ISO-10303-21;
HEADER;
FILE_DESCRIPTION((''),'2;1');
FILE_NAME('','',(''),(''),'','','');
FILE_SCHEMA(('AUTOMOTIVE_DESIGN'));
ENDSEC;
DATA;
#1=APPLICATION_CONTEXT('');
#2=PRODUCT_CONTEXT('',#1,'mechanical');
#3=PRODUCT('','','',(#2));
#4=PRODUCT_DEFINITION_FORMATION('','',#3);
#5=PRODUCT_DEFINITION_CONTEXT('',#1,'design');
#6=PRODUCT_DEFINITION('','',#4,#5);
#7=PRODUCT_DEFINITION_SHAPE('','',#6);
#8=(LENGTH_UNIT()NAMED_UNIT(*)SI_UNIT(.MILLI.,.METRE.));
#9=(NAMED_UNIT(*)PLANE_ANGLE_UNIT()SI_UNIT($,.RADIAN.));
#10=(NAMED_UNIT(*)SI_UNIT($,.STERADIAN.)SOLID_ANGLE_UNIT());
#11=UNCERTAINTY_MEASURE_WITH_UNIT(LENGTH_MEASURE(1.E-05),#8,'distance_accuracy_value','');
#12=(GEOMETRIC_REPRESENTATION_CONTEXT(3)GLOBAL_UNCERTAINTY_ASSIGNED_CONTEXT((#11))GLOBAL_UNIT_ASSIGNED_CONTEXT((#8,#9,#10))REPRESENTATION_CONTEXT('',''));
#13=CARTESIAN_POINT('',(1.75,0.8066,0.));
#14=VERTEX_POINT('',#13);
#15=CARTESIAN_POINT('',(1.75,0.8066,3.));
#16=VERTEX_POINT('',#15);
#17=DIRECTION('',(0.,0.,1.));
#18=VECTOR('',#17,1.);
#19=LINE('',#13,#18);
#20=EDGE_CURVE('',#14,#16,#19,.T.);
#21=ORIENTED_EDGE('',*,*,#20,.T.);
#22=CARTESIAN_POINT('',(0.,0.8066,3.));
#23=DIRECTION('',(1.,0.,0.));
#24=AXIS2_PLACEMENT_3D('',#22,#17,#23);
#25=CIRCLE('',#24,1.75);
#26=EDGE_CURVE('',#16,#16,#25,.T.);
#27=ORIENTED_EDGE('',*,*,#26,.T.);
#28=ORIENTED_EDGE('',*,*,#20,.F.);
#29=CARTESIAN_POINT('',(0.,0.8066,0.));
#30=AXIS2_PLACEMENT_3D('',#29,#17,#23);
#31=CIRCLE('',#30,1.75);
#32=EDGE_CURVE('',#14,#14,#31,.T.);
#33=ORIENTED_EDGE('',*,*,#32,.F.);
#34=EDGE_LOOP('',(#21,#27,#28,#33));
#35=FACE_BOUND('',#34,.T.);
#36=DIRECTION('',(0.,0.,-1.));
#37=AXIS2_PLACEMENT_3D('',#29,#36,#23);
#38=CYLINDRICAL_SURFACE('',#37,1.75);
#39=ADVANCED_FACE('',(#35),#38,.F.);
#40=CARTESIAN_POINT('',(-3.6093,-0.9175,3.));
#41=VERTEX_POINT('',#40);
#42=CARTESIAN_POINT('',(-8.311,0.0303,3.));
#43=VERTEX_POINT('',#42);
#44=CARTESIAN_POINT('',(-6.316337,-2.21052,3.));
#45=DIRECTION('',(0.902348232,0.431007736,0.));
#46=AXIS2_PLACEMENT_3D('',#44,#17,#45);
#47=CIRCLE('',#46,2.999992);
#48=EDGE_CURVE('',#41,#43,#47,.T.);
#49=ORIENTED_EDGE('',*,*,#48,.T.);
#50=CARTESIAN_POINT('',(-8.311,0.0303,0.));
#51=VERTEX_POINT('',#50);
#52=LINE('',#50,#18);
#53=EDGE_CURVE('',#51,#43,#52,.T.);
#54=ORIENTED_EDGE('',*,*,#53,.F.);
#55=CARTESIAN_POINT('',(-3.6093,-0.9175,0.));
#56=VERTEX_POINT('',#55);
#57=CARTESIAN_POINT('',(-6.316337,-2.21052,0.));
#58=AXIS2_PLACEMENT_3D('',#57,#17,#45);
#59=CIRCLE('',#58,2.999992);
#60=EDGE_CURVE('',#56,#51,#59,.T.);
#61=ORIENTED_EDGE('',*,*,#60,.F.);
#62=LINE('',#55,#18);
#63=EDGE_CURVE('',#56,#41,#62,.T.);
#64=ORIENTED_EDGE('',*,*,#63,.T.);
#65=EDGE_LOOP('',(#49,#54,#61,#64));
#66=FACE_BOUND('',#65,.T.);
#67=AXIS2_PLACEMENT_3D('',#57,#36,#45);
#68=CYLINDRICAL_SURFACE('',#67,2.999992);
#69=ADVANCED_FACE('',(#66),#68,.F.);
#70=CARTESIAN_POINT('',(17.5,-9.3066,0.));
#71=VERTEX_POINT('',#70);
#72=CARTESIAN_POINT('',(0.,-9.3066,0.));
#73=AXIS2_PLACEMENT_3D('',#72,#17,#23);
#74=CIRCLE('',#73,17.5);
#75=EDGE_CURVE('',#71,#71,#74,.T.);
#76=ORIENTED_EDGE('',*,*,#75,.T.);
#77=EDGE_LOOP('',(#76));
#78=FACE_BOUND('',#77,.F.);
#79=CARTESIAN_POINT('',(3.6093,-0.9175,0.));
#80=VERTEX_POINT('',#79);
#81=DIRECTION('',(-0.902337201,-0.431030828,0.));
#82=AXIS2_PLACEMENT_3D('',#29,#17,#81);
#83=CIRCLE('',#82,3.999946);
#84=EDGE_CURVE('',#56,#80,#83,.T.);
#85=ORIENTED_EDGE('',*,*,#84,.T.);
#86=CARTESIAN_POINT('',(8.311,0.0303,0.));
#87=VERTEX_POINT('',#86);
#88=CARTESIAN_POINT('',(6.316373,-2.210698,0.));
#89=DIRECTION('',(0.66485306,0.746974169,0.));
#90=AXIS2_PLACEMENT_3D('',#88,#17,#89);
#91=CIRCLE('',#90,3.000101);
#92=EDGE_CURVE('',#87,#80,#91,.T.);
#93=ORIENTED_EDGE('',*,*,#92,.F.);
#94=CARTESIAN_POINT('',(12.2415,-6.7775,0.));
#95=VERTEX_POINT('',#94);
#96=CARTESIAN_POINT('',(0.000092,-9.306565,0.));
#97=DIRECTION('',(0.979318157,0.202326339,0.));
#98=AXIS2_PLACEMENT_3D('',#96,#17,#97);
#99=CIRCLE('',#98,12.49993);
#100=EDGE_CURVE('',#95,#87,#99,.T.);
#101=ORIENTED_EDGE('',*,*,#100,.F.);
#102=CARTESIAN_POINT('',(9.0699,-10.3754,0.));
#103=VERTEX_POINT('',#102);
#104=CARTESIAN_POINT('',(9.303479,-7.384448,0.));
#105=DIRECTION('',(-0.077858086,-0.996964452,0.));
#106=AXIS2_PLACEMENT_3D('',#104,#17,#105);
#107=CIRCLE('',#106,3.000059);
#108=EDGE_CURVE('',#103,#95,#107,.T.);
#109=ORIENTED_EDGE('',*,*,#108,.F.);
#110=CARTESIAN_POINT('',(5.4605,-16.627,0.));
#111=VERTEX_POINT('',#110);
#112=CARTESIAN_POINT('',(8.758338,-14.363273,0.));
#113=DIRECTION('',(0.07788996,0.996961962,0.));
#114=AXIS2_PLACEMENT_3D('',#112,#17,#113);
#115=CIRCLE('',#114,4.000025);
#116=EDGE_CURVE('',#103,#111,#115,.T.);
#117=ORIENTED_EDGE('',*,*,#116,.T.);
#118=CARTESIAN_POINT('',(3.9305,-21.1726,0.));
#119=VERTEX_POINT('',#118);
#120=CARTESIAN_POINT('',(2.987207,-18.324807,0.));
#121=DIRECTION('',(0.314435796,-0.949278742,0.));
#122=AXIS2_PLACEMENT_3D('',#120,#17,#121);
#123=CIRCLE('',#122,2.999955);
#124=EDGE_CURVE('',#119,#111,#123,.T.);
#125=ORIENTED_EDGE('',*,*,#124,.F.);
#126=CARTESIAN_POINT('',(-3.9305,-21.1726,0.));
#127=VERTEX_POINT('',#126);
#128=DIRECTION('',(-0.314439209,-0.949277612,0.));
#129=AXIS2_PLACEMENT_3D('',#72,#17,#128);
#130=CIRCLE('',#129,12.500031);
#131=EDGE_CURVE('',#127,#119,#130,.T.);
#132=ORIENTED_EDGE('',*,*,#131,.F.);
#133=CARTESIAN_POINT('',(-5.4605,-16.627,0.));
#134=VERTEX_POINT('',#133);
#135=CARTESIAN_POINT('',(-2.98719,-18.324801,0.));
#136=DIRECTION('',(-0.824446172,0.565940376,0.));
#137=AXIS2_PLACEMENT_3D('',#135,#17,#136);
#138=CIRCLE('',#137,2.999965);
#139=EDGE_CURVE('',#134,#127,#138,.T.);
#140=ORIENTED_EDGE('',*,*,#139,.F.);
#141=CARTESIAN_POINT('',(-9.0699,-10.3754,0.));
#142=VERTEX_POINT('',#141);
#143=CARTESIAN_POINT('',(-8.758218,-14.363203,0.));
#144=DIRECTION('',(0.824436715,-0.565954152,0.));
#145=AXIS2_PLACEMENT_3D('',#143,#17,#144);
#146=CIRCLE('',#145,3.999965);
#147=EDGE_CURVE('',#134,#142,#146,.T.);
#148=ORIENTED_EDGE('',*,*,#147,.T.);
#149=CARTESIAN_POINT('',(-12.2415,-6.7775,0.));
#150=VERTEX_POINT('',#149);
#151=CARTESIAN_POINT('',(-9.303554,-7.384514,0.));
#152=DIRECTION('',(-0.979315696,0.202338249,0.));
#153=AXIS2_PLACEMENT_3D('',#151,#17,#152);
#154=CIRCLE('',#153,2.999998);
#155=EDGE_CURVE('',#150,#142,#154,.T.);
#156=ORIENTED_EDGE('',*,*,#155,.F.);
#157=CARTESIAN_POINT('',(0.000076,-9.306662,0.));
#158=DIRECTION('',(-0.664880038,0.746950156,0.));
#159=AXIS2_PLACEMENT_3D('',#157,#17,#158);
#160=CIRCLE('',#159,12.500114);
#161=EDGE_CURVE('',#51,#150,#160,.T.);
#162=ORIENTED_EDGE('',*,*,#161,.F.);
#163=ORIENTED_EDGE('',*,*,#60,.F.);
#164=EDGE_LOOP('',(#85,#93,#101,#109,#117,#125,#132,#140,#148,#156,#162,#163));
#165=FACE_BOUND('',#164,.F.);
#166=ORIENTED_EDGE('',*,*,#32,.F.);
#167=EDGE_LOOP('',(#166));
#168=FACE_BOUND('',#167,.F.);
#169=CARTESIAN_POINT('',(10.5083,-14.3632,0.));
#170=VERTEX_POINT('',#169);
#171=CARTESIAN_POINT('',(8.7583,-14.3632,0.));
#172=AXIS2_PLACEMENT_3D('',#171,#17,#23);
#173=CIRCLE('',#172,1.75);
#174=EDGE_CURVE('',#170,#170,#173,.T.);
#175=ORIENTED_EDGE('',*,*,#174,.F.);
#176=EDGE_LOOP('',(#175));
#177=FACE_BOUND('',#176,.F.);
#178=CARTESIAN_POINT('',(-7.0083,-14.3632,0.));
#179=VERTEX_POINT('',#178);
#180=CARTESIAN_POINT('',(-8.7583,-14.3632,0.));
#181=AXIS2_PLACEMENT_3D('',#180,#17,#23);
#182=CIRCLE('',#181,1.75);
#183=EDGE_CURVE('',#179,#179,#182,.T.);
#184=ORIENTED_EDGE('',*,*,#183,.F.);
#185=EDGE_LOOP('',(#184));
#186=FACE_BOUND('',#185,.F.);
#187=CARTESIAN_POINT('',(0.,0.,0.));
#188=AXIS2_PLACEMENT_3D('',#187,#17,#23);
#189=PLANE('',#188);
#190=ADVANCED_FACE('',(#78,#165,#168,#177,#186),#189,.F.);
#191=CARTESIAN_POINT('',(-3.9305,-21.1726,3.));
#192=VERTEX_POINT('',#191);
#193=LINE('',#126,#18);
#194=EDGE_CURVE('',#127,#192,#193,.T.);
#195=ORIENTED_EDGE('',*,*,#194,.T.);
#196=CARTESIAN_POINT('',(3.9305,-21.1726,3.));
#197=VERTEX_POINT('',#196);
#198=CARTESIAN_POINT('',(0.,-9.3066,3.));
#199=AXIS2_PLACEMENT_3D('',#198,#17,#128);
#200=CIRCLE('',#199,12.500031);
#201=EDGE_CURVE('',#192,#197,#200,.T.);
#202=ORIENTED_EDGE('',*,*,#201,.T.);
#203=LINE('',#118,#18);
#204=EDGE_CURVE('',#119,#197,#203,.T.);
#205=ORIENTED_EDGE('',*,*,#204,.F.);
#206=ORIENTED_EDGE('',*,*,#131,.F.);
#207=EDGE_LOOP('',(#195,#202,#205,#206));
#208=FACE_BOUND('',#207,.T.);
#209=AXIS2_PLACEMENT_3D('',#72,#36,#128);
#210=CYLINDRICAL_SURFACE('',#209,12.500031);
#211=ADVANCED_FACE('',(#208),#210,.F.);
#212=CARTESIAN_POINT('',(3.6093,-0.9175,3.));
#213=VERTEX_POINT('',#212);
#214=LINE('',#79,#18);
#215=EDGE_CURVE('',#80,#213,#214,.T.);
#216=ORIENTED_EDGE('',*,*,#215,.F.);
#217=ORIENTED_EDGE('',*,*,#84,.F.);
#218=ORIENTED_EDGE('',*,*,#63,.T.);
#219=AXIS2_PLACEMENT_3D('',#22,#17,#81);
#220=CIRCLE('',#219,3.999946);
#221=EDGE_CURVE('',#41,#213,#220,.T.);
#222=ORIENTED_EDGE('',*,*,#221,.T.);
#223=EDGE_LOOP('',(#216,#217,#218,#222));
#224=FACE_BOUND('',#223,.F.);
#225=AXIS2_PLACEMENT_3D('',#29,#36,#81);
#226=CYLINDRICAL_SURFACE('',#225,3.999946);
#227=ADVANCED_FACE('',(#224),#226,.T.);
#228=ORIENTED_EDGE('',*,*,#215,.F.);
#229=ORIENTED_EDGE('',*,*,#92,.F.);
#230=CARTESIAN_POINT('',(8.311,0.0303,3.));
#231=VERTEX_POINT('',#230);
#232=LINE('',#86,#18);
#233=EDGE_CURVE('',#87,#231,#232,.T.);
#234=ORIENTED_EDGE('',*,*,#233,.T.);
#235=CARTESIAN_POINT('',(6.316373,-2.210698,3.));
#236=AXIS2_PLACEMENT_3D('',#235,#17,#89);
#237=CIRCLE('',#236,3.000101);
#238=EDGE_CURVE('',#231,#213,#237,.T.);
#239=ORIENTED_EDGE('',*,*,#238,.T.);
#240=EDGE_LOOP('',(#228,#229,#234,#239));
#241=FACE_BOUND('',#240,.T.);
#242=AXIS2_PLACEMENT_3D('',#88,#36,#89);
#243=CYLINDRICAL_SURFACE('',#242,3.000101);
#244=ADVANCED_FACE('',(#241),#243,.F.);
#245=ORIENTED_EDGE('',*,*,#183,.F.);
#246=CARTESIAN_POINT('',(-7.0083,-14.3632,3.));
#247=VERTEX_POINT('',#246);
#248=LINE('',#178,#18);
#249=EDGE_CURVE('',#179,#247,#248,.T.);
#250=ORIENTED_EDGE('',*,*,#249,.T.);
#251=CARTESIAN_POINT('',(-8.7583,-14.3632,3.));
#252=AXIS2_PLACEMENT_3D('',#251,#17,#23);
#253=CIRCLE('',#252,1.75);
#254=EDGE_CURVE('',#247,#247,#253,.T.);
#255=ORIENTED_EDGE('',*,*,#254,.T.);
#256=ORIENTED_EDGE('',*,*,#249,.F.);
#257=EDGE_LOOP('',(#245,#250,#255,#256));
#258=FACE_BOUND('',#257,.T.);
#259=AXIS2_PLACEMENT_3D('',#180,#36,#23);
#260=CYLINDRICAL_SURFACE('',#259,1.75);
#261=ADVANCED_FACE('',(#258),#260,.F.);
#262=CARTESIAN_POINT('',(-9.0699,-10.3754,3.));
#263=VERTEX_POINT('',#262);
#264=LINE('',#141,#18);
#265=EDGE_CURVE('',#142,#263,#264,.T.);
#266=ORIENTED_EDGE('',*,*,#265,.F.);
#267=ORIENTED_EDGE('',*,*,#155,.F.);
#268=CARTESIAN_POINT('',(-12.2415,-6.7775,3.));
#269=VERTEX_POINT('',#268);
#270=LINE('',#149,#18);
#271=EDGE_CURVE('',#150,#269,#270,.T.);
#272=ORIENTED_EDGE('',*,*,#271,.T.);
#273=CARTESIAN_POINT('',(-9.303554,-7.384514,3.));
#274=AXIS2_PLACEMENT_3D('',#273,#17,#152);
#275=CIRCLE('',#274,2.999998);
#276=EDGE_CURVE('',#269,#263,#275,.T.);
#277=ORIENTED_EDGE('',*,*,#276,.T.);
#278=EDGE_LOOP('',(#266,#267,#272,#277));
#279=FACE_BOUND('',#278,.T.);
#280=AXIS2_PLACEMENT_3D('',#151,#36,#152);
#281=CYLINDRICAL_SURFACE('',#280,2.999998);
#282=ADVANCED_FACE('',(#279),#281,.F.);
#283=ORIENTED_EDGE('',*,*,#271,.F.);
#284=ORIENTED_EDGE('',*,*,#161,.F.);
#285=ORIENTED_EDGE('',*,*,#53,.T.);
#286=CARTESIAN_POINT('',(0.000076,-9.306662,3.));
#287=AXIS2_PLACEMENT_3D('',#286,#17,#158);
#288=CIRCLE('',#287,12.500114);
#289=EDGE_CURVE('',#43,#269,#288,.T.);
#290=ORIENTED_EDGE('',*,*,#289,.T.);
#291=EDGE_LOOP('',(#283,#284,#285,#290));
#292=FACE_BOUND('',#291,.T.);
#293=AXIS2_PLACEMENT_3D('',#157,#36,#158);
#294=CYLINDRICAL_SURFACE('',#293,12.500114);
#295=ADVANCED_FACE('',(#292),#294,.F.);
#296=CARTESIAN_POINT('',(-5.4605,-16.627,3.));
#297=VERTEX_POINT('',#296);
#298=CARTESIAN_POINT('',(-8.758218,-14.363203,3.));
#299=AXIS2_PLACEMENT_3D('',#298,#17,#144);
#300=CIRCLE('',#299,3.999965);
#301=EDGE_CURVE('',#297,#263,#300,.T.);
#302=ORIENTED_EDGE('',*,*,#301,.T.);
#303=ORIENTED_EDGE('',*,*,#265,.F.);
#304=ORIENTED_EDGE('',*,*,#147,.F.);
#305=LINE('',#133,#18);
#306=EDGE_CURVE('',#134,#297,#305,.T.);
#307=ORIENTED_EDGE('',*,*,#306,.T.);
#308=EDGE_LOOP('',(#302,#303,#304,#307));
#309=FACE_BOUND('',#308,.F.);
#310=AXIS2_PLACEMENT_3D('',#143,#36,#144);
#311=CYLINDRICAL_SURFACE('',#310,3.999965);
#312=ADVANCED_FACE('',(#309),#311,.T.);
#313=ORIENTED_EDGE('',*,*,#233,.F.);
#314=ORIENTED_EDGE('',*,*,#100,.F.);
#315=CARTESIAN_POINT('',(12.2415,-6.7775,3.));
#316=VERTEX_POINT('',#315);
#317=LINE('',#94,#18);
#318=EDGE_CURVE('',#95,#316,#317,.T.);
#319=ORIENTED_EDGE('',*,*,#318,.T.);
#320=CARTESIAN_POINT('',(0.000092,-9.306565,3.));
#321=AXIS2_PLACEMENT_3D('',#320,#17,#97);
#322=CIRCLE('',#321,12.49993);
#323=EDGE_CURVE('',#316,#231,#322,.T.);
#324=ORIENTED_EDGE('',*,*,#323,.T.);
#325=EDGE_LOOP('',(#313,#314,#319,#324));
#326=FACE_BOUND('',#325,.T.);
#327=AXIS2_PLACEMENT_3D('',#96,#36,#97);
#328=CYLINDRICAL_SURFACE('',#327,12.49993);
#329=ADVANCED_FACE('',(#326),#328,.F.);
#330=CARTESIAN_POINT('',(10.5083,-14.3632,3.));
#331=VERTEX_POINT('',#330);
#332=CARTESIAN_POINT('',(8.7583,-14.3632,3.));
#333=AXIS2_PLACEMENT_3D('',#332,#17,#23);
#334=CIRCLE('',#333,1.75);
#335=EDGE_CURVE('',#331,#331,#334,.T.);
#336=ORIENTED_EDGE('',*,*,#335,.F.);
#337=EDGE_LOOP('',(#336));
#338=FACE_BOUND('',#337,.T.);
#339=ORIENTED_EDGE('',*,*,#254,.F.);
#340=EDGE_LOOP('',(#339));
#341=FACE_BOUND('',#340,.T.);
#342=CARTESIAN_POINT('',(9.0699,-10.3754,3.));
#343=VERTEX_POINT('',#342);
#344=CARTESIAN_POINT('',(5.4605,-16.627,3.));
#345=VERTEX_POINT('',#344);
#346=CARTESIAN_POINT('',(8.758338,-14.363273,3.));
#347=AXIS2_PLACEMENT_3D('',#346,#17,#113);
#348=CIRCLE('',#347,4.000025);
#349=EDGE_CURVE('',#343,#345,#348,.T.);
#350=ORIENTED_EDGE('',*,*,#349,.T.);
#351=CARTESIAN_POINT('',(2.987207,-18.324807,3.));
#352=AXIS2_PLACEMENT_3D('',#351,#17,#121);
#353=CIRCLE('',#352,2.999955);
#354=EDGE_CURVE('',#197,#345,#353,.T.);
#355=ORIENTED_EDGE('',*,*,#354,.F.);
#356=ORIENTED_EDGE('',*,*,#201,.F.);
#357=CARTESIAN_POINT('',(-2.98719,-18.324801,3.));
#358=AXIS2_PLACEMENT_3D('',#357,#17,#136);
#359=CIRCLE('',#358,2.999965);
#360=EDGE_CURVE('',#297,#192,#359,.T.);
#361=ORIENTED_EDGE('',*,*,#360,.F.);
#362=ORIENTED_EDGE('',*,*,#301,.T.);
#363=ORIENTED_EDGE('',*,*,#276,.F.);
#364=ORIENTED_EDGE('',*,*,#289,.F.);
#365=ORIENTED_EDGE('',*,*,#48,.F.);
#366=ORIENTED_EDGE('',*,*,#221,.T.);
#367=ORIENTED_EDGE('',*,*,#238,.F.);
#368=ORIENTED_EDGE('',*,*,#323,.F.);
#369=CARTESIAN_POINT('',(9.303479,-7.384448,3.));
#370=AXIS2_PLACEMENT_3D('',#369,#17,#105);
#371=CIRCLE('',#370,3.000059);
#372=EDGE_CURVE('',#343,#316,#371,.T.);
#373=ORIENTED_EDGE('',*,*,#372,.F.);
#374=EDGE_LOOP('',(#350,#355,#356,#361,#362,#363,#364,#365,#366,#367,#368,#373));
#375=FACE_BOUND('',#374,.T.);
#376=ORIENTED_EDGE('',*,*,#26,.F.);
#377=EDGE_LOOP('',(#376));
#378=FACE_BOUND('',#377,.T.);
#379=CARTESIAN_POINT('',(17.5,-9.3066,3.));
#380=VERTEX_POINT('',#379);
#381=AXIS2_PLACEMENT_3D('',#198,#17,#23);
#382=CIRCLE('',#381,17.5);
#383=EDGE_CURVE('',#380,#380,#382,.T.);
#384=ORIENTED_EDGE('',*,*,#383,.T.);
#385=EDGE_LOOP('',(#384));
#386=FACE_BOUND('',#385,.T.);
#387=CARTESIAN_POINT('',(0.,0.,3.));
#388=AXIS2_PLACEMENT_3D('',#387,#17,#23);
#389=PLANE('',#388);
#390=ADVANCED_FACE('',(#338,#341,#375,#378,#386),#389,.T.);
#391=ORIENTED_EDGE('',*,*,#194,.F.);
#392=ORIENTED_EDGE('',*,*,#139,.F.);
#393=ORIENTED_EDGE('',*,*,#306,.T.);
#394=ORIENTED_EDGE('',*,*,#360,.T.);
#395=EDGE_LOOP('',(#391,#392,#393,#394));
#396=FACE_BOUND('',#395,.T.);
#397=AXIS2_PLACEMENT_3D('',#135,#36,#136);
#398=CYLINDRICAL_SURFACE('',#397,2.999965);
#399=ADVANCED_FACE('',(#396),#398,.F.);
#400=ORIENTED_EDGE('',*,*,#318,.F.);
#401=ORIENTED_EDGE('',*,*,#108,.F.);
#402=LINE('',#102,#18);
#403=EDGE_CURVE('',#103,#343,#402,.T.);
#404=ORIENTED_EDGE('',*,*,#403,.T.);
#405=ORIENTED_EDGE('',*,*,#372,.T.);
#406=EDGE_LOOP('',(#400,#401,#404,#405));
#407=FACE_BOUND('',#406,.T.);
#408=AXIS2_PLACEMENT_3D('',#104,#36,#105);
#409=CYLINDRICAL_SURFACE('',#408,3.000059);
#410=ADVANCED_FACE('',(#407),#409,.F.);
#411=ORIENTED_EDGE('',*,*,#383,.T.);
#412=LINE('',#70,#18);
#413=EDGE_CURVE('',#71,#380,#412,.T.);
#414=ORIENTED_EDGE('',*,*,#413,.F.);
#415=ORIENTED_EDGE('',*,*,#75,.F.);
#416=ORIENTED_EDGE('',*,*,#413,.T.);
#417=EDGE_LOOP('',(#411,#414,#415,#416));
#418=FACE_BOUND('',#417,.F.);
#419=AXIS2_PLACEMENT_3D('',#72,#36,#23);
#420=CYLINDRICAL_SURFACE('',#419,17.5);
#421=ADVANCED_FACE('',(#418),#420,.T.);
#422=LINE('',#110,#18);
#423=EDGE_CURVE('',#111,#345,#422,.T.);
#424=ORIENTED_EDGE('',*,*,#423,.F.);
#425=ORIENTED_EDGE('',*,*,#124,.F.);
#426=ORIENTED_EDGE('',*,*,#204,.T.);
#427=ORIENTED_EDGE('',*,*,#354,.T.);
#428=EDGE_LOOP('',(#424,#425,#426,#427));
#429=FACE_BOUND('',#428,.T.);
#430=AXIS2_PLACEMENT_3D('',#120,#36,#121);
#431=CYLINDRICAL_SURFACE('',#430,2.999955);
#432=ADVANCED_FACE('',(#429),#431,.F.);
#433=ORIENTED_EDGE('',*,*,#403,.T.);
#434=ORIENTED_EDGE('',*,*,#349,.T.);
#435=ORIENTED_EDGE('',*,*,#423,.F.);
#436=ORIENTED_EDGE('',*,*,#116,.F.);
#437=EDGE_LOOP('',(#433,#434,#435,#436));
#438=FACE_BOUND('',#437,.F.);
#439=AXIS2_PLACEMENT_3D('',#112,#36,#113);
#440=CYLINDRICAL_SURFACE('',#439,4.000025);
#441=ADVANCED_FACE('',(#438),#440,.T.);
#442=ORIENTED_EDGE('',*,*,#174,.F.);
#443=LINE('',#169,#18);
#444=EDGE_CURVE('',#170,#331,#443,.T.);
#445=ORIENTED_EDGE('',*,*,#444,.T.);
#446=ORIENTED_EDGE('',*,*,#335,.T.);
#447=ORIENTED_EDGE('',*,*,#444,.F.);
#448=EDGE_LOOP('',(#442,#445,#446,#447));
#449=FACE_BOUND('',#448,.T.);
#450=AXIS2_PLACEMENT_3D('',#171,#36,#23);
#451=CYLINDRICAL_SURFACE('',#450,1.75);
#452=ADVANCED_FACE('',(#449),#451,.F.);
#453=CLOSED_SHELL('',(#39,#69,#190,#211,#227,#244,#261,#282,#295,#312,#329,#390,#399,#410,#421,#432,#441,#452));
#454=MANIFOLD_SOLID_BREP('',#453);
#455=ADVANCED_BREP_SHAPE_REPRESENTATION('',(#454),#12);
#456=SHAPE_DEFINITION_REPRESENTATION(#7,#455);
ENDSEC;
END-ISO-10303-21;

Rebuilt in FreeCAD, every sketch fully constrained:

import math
import FreeCAD as App
import Part
import Sketcher

V = App.Vector
Q = App.Units.Quantity

doc = App.newDocument("Part")
body = doc.addObject("PartDesign::Body", "Body")

# Sketch on XY plane
sketch1 = doc.addObject("Sketcher::SketchObject", "Sketch")
body.addObject(sketch1)
sketch1.AttachmentSupport = (doc.XY_Plane, [""])
sketch1.MapMode = "FlatFace"
sketch1.addGeometry([
    Part.Circle(V(0, -9.3, 0), V(0, 0, 1), 17.5),  # 0
    Part.Circle(V(-8.8, -14.4, 0), V(0, 0, 1), 1.8),  # 1
    Part.ArcOfCircle(Part.Circle(V(-6.3, -2.2, 0), V(0, 0, 1), 3), math.radians(26), math.radians(132)),  # 2
    Part.ArcOfCircle(Part.Circle(V(0, 0.8, 0), V(0, 0, 1), 4), math.radians(-154), math.radians(-26)),  # 3
    Part.ArcOfCircle(Part.Circle(V(6.3, -2.2, 0), V(0, 0, 1), 3), math.radians(48), math.radians(154)),  # 4
    Part.ArcOfCircle(Part.Circle(V(0, -9.3, 0), V(0, 0, 1), 12.5), math.radians(12), math.radians(48)),  # 5
    Part.ArcOfCircle(Part.Circle(V(9.3, -7.4, 0), V(0, 0, 1), 3), math.radians(-94), math.radians(12)),  # 6
    Part.ArcOfCircle(Part.Circle(V(8.8, -14.4, 0), V(0, 0, 1), 4), math.radians(86), math.radians(214)),  # 7
    Part.ArcOfCircle(Part.Circle(V(3, -18.3, 0), V(0, 0, 1), 3), math.radians(-72), math.radians(34)),  # 8
    Part.ArcOfCircle(Part.Circle(V(0, -9.3, 0), V(0, 0, 1), 12.5), math.radians(-108), math.radians(-72)),  # 9
    Part.ArcOfCircle(Part.Circle(V(-3, -18.3, 0), V(0, 0, 1), 3), math.radians(146), math.radians(252)),  # 10
    Part.ArcOfCircle(Part.Circle(V(-8.8, -14.4, 0), V(0, 0, 1), 4), math.radians(-34), math.radians(94)),  # 11
    Part.ArcOfCircle(Part.Circle(V(-9.3, -7.4, 0), V(0, 0, 1), 3), math.radians(168), math.radians(274)),  # 12
    Part.ArcOfCircle(Part.Circle(V(0, -9.3, 0), V(0, 0, 1), 12.5), math.radians(132), math.radians(168)),  # 13
    Part.Circle(V(0, 0.8, 0), V(0, 0, 1), 1.8),  # 14
    Part.Circle(V(8.8, -14.4, 0), V(0, 0, 1), 1.8),  # 15
], False)
sketch1.addConstraint([
    Sketcher.Constraint("Tangent", 2, 1, 3, 1),
    Sketcher.Constraint("Tangent", 3, 2, 4, 2),
    Sketcher.Constraint("Tangent", 4, 1, 5, 2),
    Sketcher.Constraint("Tangent", 5, 1, 6, 2),
    Sketcher.Constraint("Tangent", 6, 1, 7, 1),
    Sketcher.Constraint("Tangent", 7, 2, 8, 2),
    Sketcher.Constraint("Tangent", 8, 1, 9, 2),
    Sketcher.Constraint("Tangent", 9, 1, 10, 2),
    Sketcher.Constraint("Tangent", 10, 1, 11, 1),
    Sketcher.Constraint("Tangent", 11, 2, 12, 2),
    Sketcher.Constraint("Tangent", 12, 1, 13, 2),
    Sketcher.Constraint("Tangent", 13, 1, 2, 2),
    Sketcher.Constraint("Coincident", 5, 3, 0, 3),
    Sketcher.Constraint("Coincident", 9, 3, 0, 3),
    Sketcher.Constraint("Coincident", 11, 3, 1, 3),
    Sketcher.Constraint("Coincident", 13, 3, 0, 3),
    Sketcher.Constraint("Coincident", 14, 3, 3, 3),
    Sketcher.Constraint("Coincident", 15, 3, 7, 3),
    Sketcher.Constraint("Equal", 2, 4),
    Sketcher.Constraint("Equal", 4, 6),
    Sketcher.Constraint("Equal", 3, 7),
    Sketcher.Constraint("Equal", 6, 8),
    Sketcher.Constraint("Equal", 5, 9),
    Sketcher.Constraint("Equal", 8, 10),
    Sketcher.Constraint("Equal", 7, 11),
    Sketcher.Constraint("Equal", 10, 12),
    Sketcher.Constraint("Equal", 9, 13),
    Sketcher.Constraint("Equal", 1, 14),
    Sketcher.Constraint("Equal", 14, 15),
    Sketcher.Constraint("Symmetric", 2, 3, 4, 3, -2),
    Sketcher.Constraint("Symmetric", 1, 3, 7, 3, -2),
    Sketcher.Constraint("Diameter", 1, Q("3.5 mm")),
    Sketcher.Constraint("Diameter", 0, Q("35 mm")),
    Sketcher.Constraint("Radius", 2, Q("3 mm")),
    Sketcher.Constraint("Radius", 3, Q("4 mm")),
    Sketcher.Constraint("Radius", 5, Q("12.5 mm")),
    Sketcher.Constraint("DistanceX", -1, 1, 6, 1, Q("9.07 mm")),
    Sketcher.Constraint("DistanceX", 2, 3, 6, 3, Q("15.62 mm")),
    Sketcher.Constraint("DistanceX", 8, 1, 7, 2, Q("1.53 mm")),
    Sketcher.Constraint("DistanceY", 7, 2, -1, 1, Q("16.627 mm")),
])
pad1 = doc.addObject("PartDesign::Pad", "Pad")
body.addObject(pad1)
pad1.Profile = sketch1
pad1.Length = 3

doc.recompute()
